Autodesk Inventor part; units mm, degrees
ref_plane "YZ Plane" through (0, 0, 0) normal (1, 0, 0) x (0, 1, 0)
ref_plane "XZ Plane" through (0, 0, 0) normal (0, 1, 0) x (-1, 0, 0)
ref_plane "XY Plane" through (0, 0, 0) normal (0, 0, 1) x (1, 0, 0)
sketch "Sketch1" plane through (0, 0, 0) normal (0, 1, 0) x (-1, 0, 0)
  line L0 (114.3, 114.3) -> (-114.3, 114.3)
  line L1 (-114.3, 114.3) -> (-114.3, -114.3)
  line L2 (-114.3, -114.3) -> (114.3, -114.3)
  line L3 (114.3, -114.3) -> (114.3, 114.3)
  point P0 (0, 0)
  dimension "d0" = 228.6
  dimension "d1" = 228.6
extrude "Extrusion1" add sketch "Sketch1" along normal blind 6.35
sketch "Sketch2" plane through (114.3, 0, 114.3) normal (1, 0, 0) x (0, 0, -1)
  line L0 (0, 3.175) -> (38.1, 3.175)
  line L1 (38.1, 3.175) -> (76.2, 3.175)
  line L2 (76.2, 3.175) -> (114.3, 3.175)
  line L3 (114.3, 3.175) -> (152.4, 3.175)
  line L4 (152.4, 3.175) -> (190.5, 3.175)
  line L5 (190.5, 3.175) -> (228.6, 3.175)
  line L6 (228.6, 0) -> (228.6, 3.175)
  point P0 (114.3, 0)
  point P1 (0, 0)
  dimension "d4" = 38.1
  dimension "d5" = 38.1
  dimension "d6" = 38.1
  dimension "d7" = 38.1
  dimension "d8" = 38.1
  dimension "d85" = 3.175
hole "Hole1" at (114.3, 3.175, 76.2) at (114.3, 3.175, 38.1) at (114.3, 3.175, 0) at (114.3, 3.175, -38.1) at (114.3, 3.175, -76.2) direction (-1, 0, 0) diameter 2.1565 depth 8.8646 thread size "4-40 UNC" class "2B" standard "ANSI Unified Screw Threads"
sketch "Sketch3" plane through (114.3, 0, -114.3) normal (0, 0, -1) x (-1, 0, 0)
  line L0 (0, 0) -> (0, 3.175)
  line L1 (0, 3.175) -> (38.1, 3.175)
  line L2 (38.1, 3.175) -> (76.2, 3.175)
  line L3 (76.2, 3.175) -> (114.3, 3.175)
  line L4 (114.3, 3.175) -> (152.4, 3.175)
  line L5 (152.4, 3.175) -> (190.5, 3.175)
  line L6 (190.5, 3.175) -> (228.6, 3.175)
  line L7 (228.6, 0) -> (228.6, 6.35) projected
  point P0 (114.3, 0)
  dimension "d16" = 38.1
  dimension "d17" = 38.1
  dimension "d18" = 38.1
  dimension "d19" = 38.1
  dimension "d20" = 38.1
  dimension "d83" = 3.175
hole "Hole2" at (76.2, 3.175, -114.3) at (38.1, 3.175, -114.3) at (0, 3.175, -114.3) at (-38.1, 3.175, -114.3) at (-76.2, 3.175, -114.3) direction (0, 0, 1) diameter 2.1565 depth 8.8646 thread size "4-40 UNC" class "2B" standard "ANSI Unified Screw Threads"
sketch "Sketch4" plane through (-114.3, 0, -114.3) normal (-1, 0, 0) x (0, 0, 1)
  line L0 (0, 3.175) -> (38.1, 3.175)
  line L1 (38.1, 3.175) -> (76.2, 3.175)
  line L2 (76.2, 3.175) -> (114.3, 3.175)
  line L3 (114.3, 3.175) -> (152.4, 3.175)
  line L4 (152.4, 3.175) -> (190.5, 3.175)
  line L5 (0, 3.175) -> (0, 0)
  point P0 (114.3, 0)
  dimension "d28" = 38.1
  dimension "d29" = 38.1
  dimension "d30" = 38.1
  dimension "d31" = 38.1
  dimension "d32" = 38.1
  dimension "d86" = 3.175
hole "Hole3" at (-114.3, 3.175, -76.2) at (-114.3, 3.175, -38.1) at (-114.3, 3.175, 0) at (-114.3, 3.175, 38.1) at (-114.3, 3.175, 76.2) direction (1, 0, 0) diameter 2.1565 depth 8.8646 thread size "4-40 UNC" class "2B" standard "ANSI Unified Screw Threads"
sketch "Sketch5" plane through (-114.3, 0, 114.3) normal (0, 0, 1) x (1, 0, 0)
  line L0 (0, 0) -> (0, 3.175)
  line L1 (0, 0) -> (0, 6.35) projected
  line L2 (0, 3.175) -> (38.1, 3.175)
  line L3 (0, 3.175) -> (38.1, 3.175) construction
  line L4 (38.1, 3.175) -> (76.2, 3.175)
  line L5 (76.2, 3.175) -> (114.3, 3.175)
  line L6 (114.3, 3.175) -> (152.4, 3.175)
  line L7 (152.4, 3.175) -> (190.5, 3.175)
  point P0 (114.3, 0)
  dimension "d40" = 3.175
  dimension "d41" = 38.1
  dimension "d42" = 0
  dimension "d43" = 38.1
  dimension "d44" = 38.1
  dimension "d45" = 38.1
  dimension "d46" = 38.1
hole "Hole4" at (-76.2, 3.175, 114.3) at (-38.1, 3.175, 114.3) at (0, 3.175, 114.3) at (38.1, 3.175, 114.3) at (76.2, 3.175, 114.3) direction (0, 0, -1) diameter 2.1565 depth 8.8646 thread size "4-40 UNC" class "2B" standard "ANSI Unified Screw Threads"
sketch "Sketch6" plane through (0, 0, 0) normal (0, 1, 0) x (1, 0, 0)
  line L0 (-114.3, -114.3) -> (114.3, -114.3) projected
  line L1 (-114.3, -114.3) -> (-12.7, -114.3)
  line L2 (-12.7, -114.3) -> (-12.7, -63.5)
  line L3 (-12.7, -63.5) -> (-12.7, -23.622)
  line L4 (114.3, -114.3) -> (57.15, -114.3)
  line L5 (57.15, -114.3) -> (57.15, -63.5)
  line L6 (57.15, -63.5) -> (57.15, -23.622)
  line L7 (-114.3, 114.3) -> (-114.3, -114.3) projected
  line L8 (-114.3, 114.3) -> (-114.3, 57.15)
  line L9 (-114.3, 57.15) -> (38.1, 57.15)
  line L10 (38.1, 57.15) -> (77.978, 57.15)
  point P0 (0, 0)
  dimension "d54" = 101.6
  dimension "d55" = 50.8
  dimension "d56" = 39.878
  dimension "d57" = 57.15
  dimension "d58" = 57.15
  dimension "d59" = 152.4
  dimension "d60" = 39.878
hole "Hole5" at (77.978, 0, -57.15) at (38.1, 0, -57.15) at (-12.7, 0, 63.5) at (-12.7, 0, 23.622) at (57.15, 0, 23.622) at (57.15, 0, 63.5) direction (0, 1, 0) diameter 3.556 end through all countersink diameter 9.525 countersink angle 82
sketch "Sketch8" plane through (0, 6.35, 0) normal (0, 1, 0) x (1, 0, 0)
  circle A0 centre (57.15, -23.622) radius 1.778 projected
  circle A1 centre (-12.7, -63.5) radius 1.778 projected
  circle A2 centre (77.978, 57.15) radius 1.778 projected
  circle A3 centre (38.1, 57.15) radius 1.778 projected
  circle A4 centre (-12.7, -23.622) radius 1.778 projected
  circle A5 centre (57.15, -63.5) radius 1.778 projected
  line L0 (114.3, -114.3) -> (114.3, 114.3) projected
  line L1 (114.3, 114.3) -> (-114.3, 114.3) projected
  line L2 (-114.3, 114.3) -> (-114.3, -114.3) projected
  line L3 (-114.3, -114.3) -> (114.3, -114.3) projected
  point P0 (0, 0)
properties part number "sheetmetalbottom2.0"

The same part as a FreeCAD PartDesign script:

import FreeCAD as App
import Part
import Sketcher
from FreeCAD import Vector
Q = App.Units.Quantity


def add_polygon(sketch, points):
    """Adds a closed chain of lines whose ends are joined by coincident constraints."""
    first, n = sketch.GeometryCount, len(points)
    for a, b in zip(points, points[1:] + points[:1]):
        sketch.addGeometry(Part.LineSegment(App.Vector(*a, 0), App.Vector(*b, 0)), False)
    for i in range(n):
        sketch.addConstraint(Sketcher.Constraint("Coincident", first + i, 2, first + (i + 1) % n, 1))

doc = App.newDocument("Part")
params = doc.addObject("Spreadsheet::Sheet", "Params")
for row, (alias, value) in enumerate([
    ("sketch1_width", "9 in"),
    ("pad1_length", "0.25 in"),
    ("hole_diameter", "0.0849016 in"),
    ("hole_depth", "0.349 in"),
    ("hole2_diameter", "0.0849016 in"),
    ("hole2_depth", "0.349 in"),
    ("hole3_diameter", "0.0849016 in"),
    ("hole3_depth", "0.349 in"),
    ("hole4_diameter", "0.0849016 in"),
    ("hole4_depth", "0.349 in"),
    ("sketch6_diameter", "0.14 in"),
    ("hole5_diameter", "0.14 in"),
    ("hole5_csink_diameter", "0.375 in"),
], start=1):
    params.set(f"A{row}", alias)
    params.set(f"B{row}", "=" + value)
    params.setAlias(f"B{row}", alias)

body = doc.addObject("PartDesign::Body", "Body")

sketch1 = doc.addObject("Sketcher::SketchObject", "Sketch")
body.addObject(sketch1)
sketch1.AttachmentSupport = (doc.XZ_Plane, [""])
sketch1.MapMode = "FlatFace"
add_polygon(sketch1, [(-114, -114), (-114, 114), (114, 114), (114, -114)])
sketch1.addConstraint(Sketcher.Constraint("Vertical", 0))
sketch1.addConstraint(Sketcher.Constraint("Horizontal", 1))
sketch1.addConstraint(Sketcher.Constraint("Vertical", 2))
sketch1.addConstraint(Sketcher.Constraint("Horizontal", 3))
sketch1.addConstraint(Sketcher.Constraint("Symmetric", 0, 2, 2, 2, -1, 1))
sketch1.addConstraint(Sketcher.Constraint("Equal", 3, 0))
sketch1.addConstraint(Sketcher.Constraint("DistanceX", 1, 1, 1, 2, Q("9 in")))
sketch1.setExpression("Constraints[10]", "Params.sketch1_width")
pad1 = doc.addObject("PartDesign::Pad", "Pad")
body.addObject(pad1)
pad1.Profile = sketch1
pad1.setExpression("Length", "Params.pad1_length")
pad1.Reversed = True

sketch2 = doc.addObject("Sketcher::SketchObject", "Sketch001")
body.addObject(sketch2)
sketch2.AttachmentSupport = (doc.YZ_Plane, [""])
sketch2.MapMode = "FlatFace"
sketch2.AttachmentOffset = App.Placement(Vector(0, 0, 4.5 * 25.4), App.Rotation())
sketch2.addGeometry(Part.Circle(Vector(3.2, 76.2, 0), Vector(0, 0, 1), 1.1), False)
sketch2.addGeometry(Part.Circle(Vector(3.2, 38.1, 0), Vector(0, 0, 1), 1.1), False)
sketch2.addGeometry(Part.Circle(Vector(3.2, 0, 0), Vector(0, 0, 1), 1.1), False)
sketch2.addGeometry(Part.Circle(Vector(3.2, -38.1, 0), Vector(0, 0, 1), 1.1), False)
sketch2.addGeometry(Part.Circle(Vector(3.2, -76.2, 0), Vector(0, 0, 1), 1.1), False)
sketch2.addConstraint(Sketcher.Constraint("Equal", 0, 1))
sketch2.addConstraint(Sketcher.Constraint("Equal", 1, 2))
sketch2.addConstraint(Sketcher.Constraint("Equal", 2, 3))
sketch2.addConstraint(Sketcher.Constraint("Equal", 3, 4))
sketch2.addConstraint(Sketcher.Constraint("Symmetric", 1, 3, 3, 3, -1))
sketch2.addConstraint(Sketcher.Constraint("Symmetric", 0, 3, 4, 3, -1))
sketch2.addConstraint(Sketcher.Constraint("PointOnObject", 2, 3, -1))
sketch2.addConstraint(Sketcher.Constraint("Vertical", 0, 3, 1, 3))
sketch2.addConstraint(Sketcher.Constraint("Vertical", 1, 3, 2, 3))
sketch2.addConstraint(Sketcher.Constraint("DistanceY", -1, 1, 0, 3, Q("3 in")))
sketch2.addConstraint(Sketcher.Constraint("DistanceY", 3, 3, 1, 3, Q("3 in")))
sketch2.addConstraint(Sketcher.Constraint("Diameter", 0, Q("0.0849 in")))
sketch2.addConstraint(Sketcher.Constraint("DistanceX", -1, 1, 0, 3, Q("0.125 in")))
doc.recompute()
hole = doc.addObject("PartDesign::Hole", "Hole")
body.addObject(hole)
hole.Profile = sketch2
hole.ThreadType = "None"
hole.setExpression("Diameter", "Params.hole_diameter")
hole.DepthType = "Dimension"
hole.setExpression("Depth", "Params.hole_depth")
hole.DrillPoint = "Flat"

sketch3 = doc.addObject("Sketcher::SketchObject", "Sketch002")
body.addObject(sketch3)
sketch3.AttachmentSupport = (doc.XY_Plane, [""])
sketch3.MapMode = "FlatFace"
sketch3.AttachmentOffset = App.Placement(Vector(0, 0, -4.5 * 25.4), App.Rotation())
sketch3.addGeometry(Part.Circle(Vector(76.2, 3.2, 0), Vector(0, 0, 1), 1.1), False)
sketch3.addGeometry(Part.Circle(Vector(38.1, 3.2, 0), Vector(0, 0, 1), 1.1), False)
sketch3.addGeometry(Part.Circle(Vector(0, 3.2, 0), Vector(0, 0, 1), 1.1), False)
sketch3.addGeometry(Part.Circle(Vector(-38.1, 3.2, 0), Vector(0, 0, 1), 1.1), False)
sketch3.addGeometry(Part.Circle(Vector(-76.2, 3.2, 0), Vector(0, 0, 1), 1.1), False)
sketch3.addConstraint(Sketcher.Constraint("Equal", 0, 1))
sketch3.addConstraint(Sketcher.Constraint("Equal", 1, 2))
sketch3.addConstraint(Sketcher.Constraint("Equal", 2, 3))
sketch3.addConstraint(Sketcher.Constraint("Equal", 3, 4))
sketch3.addConstraint(Sketcher.Constraint("Symmetric", 1, 3, 3, 3, -2))
sketch3.addConstraint(Sketcher.Constraint("Symmetric", 0, 3, 4, 3, -2))
sketch3.addConstraint(Sketcher.Constraint("PointOnObject", 2, 3, -2))
sketch3.addConstraint(Sketcher.Constraint("Horizontal", 0, 3, 1, 3))
sketch3.addConstraint(Sketcher.Constraint("Horizontal", 1, 3, 2, 3))
sketch3.addConstraint(Sketcher.Constraint("DistanceX", -1, 1, 0, 3, Q("3 in")))
sketch3.addConstraint(Sketcher.Constraint("DistanceX", 3, 3, 1, 3, Q("3 in")))
sketch3.addConstraint(Sketcher.Constraint("Diameter", 0, Q("0.0849 in")))
sketch3.addConstraint(Sketcher.Constraint("DistanceY", -1, 1, 0, 3, Q("0.125 in")))
doc.recompute()
hole2 = doc.addObject("PartDesign::Hole", "Hole001")
body.addObject(hole2)
hole2.Profile = sketch3
hole2.ThreadType = "None"
hole2.setExpression("Diameter", "Params.hole2_diameter")
hole2.DepthType = "Dimension"
hole2.setExpression("Depth", "Params.hole2_depth")
hole2.DrillPoint = "Flat"
hole2.Reversed = True

sketch4 = doc.addObject("Sketcher::SketchObject", "Sketch003")
body.addObject(sketch4)
sketch4.AttachmentSupport = (doc.YZ_Plane, [""])
sketch4.MapMode = "FlatFace"
sketch4.AttachmentOffset = App.Placement(Vector(0, 0, -4.5 * 25.4), App.Rotation())
sketch4.addGeometry(Part.Circle(Vector(3.2, -76.2, 0), Vector(0, 0, 1), 1.1), False)
sketch4.addGeometry(Part.Circle(Vector(3.2, -38.1, 0), Vector(0, 0, 1), 1.1), False)
sketch4.addGeometry(Part.Circle(Vector(3.2, 0, 0), Vector(0, 0, 1), 1.1), False)
sketch4.addGeometry(Part.Circle(Vector(3.2, 38.1, 0), Vector(0, 0, 1), 1.1), False)
sketch4.addGeometry(Part.Circle(Vector(3.2, 76.2, 0), Vector(0, 0, 1), 1.1), False)
sketch4.addConstraint(Sketcher.Constraint("Equal", 0, 1))
sketch4.addConstraint(Sketcher.Constraint("Equal", 1, 2))
sketch4.addConstraint(Sketcher.Constraint("Equal", 2, 3))
sketch4.addConstraint(Sketcher.Constraint("Equal", 3, 4))
sketch4.addConstraint(Sketcher.Constraint("Symmetric", 1, 3, 3, 3, -1))
sketch4.addConstraint(Sketcher.Constraint("Symmetric", 0, 3, 4, 3, -1))
sketch4.addConstraint(Sketcher.Constraint("PointOnObject", 2, 3, -1))
sketch4.addConstraint(Sketcher.Constraint("Vertical", 0, 3, 1, 3))
sketch4.addConstraint(Sketcher.Constraint("Vertical", 1, 3, 2, 3))
sketch4.addConstraint(Sketcher.Constraint("DistanceY", 0, 3, -1, 1, Q("3 in")))
sketch4.addConstraint(Sketcher.Constraint("DistanceY", 1, 3, 3, 3, Q("3 in")))
sketch4.addConstraint(Sketcher.Constraint("Diameter", 0, Q("0.0849 in")))
sketch4.addConstraint(Sketcher.Constraint("DistanceX", -1, 1, 0, 3, Q("0.125 in")))
doc.recompute()
hole3 = doc.addObject("PartDesign::Hole", "Hole002")
body.addObject(hole3)
hole3.Profile = sketch4
hole3.ThreadType = "None"
hole3.setExpression("Diameter", "Params.hole3_diameter")
hole3.DepthType = "Dimension"
hole3.setExpression("Depth", "Params.hole3_depth")
hole3.DrillPoint = "Flat"
hole3.Reversed = True

sketch5 = doc.addObject("Sketcher::SketchObject", "Sketch004")
body.addObject(sketch5)
sketch5.AttachmentSupport = (doc.XY_Plane, [""])
sketch5.MapMode = "FlatFace"
sketch5.AttachmentOffset = App.Placement(Vector(0, 0, 4.5 * 25.4), App.Rotation())
sketch5.addGeometry(Part.Circle(Vector(-76.2, 3.2, 0), Vector(0, 0, 1), 1.1), False)
sketch5.addGeometry(Part.Circle(Vector(-38.1, 3.2, 0), Vector(0, 0, 1), 1.1), False)
sketch5.addGeometry(Part.Circle(Vector(0, 3.2, 0), Vector(0, 0, 1), 1.1), False)
sketch5.addGeometry(Part.Circle(Vector(38.1, 3.2, 0), Vector(0, 0, 1), 1.1), False)
sketch5.addGeometry(Part.Circle(Vector(76.2, 3.2, 0), Vector(0, 0, 1), 1.1), False)
sketch5.addConstraint(Sketcher.Constraint("Equal", 0, 1))
sketch5.addConstraint(Sketcher.Constraint("Equal", 1, 2))
sketch5.addConstraint(Sketcher.Constraint("Equal", 2, 3))
sketch5.addConstraint(Sketcher.Constraint("Equal", 3, 4))
sketch5.addConstraint(Sketcher.Constraint("Symmetric", 1, 3, 3, 3, -2))
sketch5.addConstraint(Sketcher.Constraint("Symmetric", 0, 3, 4, 3, -2))
sketch5.addConstraint(Sketcher.Constraint("PointOnObject", 2, 3, -2))
sketch5.addConstraint(Sketcher.Constraint("Horizontal", 0, 3, 1, 3))
sketch5.addConstraint(Sketcher.Constraint("Horizontal", 1, 3, 2, 3))
sketch5.addConstraint(Sketcher.Constraint("DistanceX", 0, 3, -1, 1, Q("3 in")))
sketch5.addConstraint(Sketcher.Constraint("DistanceX", 1, 3, 3, 3, Q("3 in")))
sketch5.addConstraint(Sketcher.Constraint("Diameter", 0, Q("0.0849 in")))
sketch5.addConstraint(Sketcher.Constraint("DistanceY", -1, 1, 0, 3, Q("0.125 in")))
doc.recompute()
hole4 = doc.addObject("PartDesign::Hole", "Hole003")
body.addObject(hole4)
hole4.Profile = sketch5
hole4.ThreadType = "None"
hole4.setExpression("Diameter", "Params.hole4_diameter")
hole4.DepthType = "Dimension"
hole4.setExpression("Depth", "Params.hole4_depth")
hole4.DrillPoint = "Flat"

sketch6 = doc.addObject("Sketcher::SketchObject", "Sketch005")
body.addObject(sketch6)
sketch6.AttachmentSupport = (doc.XZ_Plane, [""])
sketch6.MapMode = "FlatFace"
sketch6.addGeometry(Part.Circle(Vector(78, -57.1, 0), Vector(0, 0, 1), 1.8), False)
sketch6.addGeometry(Part.Circle(Vector(38.1, -57.1, 0), Vector(0, 0, 1), 1.8), False)
sketch6.addGeometry(Part.Circle(Vector(-12.7, 63.5, 0), Vector(0, 0, 1), 1.8), False)
sketch6.addGeometry(Part.Circle(Vector(-12.7, 23.6, 0), Vector(0, 0, 1), 1.8), False)
sketch6.addGeometry(Part.Circle(Vector(57.1, 23.6, 0), Vector(0, 0, 1), 1.8), False)
sketch6.addGeometry(Part.Circle(Vector(57.1, 63.5, 0), Vector(0, 0, 1), 1.8), False)
sketch6.addConstraint(Sketcher.Constraint("Equal", 0, 1))
sketch6.addConstraint(Sketcher.Constraint("Equal", 1, 2))
sketch6.addConstraint(Sketcher.Constraint("Equal", 2, 3))
sketch6.addConstraint(Sketcher.Constraint("Equal", 3, 4))
sketch6.addConstraint(Sketcher.Constraint("Equal", 4, 5))
sketch6.addConstraint(Sketcher.Constraint("Horizontal", 0, 3, 1, 3))
sketch6.addConstraint(Sketcher.Constraint("Horizontal", 3, 3, 4, 3))
sketch6.addConstraint(Sketcher.Constraint("Horizontal", 2, 3, 5, 3))
sketch6.addConstraint(Sketcher.Constraint("Vertical", 2, 3, 3, 3))
sketch6.addConstraint(Sketcher.Constraint("Vertical", 4, 3, 5, 3))
sketch6.addConstraint(Sketcher.Constraint("Diameter", 0, Q("0.14 in")))
sketch6.addConstraint(Sketcher.Constraint("DistanceX", 2, 3, 1, 3, Q("2 in")))
sketch6.addConstraint(Sketcher.Constraint("DistanceX", -1, 1, 1, 3, Q("1.5 in")))
sketch6.addConstraint(Sketcher.Constraint("DistanceY", -1, 1, 2, 3, Q("2.5 in")))
sketch6.addConstraint(Sketcher.Constraint("DistanceX", -1, 1, 0, 3, Q("3.07 in")))
sketch6.addConstraint(Sketcher.Constraint("DistanceY", 0, 3, -1, 1, Q("2.25 in")))
sketch6.addConstraint(Sketcher.Constraint("DistanceY", -1, 1, 3, 3, Q("0.93 in")))
sketch6.addConstraint(Sketcher.Constraint("DistanceX", -1, 1, 4, 3, Q("2.25 in")))
sketch6.setExpression("Constraints[10]", "Params.sketch6_diameter")
doc.recompute()
hole5 = doc.addObject("PartDesign::Hole", "Hole004")
body.addObject(hole5)
hole5.Profile = sketch6
hole5.ThreadType = "None"
hole5.setExpression("Diameter", "Params.hole5_diameter")
hole5.DepthType = "ThroughAll"
hole5.HoleCutType = "Countersink"
hole5.setExpression("HoleCutDiameter", "Params.hole5_csink_diameter")
hole5.HoleCutCountersinkAngle = 82

doc.recompute()
